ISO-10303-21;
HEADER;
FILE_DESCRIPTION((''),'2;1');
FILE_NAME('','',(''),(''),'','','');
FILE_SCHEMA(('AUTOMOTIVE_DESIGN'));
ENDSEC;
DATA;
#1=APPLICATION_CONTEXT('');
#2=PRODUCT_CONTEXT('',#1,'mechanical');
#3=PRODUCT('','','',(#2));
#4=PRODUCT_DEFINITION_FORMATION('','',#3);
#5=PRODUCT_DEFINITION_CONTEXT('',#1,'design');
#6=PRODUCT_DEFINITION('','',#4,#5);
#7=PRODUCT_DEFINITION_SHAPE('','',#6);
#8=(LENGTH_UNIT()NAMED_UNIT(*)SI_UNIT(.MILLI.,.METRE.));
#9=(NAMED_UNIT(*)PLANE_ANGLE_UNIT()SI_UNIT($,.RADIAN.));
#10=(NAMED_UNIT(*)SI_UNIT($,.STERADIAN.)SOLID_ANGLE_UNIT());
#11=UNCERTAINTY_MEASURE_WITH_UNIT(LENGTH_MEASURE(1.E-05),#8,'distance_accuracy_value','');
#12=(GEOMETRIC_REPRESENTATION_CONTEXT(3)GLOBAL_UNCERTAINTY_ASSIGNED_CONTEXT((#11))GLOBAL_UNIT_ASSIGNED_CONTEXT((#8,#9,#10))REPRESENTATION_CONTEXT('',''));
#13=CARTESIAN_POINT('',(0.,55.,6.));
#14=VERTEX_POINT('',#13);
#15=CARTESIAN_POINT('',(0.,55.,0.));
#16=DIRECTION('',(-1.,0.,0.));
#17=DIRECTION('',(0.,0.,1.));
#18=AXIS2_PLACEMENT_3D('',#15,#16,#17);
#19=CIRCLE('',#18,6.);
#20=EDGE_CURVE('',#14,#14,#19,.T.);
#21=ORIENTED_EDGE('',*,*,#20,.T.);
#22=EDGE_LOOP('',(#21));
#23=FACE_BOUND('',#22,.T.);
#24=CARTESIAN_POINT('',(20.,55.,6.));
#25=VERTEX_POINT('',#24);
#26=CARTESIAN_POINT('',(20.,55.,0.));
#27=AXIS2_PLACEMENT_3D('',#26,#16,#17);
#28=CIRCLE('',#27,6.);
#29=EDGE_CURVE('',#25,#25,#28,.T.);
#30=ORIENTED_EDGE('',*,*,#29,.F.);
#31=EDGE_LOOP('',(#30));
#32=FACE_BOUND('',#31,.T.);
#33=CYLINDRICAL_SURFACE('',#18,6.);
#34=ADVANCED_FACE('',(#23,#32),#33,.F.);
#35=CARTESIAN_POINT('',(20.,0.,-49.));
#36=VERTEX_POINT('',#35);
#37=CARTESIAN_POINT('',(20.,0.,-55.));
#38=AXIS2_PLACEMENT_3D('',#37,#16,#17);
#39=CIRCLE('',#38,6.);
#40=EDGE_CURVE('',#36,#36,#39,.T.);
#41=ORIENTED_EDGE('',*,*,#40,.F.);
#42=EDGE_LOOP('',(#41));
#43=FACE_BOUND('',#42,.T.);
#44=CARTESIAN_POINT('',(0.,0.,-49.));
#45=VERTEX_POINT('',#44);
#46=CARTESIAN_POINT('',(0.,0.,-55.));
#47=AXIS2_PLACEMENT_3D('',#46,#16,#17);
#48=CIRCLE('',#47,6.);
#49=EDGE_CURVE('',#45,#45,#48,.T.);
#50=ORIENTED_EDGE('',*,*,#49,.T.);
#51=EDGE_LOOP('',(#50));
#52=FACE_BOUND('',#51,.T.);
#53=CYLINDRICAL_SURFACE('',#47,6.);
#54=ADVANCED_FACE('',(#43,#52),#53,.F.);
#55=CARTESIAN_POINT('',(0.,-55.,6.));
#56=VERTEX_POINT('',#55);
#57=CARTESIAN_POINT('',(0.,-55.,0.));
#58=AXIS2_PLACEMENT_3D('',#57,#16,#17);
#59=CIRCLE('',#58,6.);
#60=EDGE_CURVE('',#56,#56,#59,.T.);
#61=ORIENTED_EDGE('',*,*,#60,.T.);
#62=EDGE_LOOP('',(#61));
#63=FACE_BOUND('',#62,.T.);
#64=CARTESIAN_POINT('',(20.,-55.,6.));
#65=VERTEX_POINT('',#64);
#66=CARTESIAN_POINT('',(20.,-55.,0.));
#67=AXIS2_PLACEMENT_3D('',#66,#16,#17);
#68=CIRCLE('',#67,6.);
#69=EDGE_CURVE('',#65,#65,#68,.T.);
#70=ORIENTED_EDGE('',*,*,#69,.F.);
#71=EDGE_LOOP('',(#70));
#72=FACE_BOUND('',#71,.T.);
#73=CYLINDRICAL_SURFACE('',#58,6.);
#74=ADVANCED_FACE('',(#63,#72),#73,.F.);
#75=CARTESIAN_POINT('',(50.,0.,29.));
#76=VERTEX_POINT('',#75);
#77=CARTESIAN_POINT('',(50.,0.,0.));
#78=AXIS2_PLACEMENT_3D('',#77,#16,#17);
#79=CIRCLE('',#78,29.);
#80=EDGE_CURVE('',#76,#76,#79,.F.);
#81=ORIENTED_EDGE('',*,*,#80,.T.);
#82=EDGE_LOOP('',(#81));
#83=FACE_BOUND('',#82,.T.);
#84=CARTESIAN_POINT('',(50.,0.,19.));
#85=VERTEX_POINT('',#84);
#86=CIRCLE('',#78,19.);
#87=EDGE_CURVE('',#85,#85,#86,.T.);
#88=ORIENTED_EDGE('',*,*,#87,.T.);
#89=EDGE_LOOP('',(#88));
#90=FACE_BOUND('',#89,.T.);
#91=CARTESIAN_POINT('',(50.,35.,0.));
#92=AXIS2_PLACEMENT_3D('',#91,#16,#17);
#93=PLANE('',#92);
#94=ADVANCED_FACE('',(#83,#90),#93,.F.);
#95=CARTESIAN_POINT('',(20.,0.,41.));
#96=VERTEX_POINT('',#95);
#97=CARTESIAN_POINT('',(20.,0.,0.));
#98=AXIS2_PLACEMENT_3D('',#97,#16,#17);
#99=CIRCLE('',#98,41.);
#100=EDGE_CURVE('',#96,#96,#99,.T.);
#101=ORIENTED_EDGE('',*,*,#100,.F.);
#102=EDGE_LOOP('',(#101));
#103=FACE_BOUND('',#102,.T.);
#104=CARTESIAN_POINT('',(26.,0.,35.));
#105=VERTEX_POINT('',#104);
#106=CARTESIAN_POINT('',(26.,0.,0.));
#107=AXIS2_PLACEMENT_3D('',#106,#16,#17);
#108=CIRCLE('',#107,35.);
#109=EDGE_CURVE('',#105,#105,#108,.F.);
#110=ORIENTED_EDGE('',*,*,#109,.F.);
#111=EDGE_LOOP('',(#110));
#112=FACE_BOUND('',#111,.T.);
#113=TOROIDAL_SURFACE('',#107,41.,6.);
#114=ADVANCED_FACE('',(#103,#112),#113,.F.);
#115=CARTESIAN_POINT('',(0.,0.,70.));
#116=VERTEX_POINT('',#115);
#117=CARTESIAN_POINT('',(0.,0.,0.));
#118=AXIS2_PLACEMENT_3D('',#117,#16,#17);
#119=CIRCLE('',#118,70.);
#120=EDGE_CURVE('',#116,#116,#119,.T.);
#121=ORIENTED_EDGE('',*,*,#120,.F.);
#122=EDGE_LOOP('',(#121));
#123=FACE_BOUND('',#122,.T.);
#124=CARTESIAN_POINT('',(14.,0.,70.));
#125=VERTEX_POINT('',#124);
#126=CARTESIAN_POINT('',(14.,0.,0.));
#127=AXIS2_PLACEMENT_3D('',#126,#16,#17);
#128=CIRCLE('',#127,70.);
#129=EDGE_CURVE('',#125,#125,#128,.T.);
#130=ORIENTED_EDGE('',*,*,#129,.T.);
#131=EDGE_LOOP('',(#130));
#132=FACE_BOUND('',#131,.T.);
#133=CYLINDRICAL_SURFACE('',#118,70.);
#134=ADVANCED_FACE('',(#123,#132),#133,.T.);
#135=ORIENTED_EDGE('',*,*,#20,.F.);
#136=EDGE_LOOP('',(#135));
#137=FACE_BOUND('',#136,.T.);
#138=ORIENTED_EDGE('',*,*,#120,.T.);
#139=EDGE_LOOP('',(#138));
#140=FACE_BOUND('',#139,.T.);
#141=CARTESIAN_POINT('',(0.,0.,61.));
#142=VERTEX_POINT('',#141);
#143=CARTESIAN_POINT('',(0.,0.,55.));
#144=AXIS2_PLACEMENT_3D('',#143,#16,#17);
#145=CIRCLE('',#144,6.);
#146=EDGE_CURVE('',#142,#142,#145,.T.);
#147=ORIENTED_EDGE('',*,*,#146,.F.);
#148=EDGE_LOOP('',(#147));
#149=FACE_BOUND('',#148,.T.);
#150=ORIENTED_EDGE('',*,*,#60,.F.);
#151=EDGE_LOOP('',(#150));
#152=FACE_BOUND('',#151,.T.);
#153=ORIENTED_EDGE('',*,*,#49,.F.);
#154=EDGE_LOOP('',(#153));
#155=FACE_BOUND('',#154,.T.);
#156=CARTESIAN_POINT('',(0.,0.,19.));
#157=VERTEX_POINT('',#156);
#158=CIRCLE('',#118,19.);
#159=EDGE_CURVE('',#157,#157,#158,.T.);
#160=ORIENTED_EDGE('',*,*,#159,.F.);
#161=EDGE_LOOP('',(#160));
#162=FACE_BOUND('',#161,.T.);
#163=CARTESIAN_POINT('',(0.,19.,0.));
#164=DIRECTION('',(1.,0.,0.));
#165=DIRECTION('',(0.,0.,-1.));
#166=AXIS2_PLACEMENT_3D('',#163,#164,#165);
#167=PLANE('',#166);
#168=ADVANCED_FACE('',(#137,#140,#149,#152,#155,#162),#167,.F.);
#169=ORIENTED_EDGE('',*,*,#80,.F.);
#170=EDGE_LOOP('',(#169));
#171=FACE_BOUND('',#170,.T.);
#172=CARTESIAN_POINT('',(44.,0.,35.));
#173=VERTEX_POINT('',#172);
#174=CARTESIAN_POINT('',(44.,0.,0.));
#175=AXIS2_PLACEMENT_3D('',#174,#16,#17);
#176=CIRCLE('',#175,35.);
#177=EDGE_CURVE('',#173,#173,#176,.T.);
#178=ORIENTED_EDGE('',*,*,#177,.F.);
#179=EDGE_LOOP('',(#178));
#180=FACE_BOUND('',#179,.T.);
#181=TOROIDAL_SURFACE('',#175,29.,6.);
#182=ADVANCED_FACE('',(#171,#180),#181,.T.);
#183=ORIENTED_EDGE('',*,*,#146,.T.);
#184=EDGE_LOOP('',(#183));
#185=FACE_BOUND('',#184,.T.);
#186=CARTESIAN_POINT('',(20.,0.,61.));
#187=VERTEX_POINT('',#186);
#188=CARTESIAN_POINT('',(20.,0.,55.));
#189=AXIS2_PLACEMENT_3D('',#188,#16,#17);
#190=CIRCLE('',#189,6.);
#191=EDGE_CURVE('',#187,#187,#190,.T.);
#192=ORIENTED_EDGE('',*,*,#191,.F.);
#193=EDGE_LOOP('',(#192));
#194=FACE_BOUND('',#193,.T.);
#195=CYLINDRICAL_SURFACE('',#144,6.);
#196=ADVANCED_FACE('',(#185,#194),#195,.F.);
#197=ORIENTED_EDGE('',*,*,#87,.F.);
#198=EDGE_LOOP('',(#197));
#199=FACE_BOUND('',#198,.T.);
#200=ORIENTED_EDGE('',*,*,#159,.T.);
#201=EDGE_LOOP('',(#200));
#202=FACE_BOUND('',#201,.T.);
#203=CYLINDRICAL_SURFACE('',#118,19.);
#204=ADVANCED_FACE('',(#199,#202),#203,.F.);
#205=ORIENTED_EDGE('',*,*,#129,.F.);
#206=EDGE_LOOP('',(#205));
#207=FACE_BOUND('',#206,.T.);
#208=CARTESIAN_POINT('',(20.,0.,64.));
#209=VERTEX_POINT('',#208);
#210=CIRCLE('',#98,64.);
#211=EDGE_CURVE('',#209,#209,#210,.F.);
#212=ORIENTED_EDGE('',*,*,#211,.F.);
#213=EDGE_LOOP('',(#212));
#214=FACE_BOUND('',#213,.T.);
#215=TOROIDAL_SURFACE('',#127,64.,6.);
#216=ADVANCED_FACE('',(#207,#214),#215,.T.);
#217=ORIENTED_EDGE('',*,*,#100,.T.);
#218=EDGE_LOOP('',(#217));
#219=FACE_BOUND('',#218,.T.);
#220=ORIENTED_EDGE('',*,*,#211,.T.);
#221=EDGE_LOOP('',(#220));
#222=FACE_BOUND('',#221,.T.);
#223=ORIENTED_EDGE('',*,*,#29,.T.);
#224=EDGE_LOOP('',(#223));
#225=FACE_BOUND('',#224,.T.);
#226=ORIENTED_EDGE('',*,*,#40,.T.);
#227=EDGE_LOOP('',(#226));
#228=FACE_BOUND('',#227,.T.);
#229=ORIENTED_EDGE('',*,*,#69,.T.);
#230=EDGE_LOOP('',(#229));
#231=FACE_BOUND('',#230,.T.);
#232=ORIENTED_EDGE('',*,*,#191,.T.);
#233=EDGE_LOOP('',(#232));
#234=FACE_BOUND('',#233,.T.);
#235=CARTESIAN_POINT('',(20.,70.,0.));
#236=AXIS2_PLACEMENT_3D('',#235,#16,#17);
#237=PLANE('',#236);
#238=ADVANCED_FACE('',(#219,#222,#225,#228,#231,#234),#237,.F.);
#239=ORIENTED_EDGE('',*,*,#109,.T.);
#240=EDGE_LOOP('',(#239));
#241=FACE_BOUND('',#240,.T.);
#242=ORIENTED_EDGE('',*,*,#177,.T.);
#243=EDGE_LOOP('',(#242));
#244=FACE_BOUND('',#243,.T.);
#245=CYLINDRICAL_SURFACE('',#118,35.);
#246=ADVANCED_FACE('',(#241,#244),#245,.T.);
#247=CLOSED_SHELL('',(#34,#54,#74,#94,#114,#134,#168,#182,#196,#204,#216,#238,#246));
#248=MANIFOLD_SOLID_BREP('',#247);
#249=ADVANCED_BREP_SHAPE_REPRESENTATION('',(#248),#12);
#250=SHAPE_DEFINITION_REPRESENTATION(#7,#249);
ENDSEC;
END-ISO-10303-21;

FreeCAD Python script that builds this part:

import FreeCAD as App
import Part
import Sketcher

V = App.Vector


def edges_at(feature, points):
    """Names of the edges that pass closest to the given points."""
    edges = feature.Shape.Edges
    near = lambda p: min(range(len(edges)), key=lambda i: edges[i].distToShape(Part.Vertex(*p))[0])
    return sorted({f"Edge{near(p) + 1}" for p in points})


def add_polygon(sketch, points):
    """Adds a closed chain of lines whose ends are joined by coincident constraints."""
    first, n = sketch.GeometryCount, len(points)
    for a, b in zip(points, points[1:] + points[:1]):
        sketch.addGeometry(Part.LineSegment(App.Vector(*a, 0), App.Vector(*b, 0)), False)
    for i in range(n):
        sketch.addConstraint(Sketcher.Constraint("Coincident", first + i, 2, first + (i + 1) % n, 1))

doc = App.newDocument("Part")
body = doc.addObject("PartDesign::Body", "Body")

# Sketch on XY plane
sketch1 = body.newObject("Sketcher::SketchObject", "Sketch")
sketch1.AttachmentSupport = (doc.getObject("XY_Plane"), [""])
sketch1.MapMode = "FlatFace"
add_polygon(sketch1, [(0, 70), (0, 19), (50, 19), (50, 35), (20, 35), (20, 70)])  # lines 0-5
sketch1.addConstraint(Sketcher.Constraint("Vertical", 0))
sketch1.addConstraint(Sketcher.Constraint("Horizontal", 1))
sketch1.addConstraint(Sketcher.Constraint("Vertical", 2))
sketch1.addConstraint(Sketcher.Constraint("Horizontal", 3))
sketch1.addConstraint(Sketcher.Constraint("Vertical", 4))
sketch1.addConstraint(Sketcher.Constraint("Horizontal", 5))
sketch1.addConstraint(Sketcher.Constraint("PointOnObject", 0, 2, -2))
sketch1.addConstraint(Sketcher.Constraint("DistanceX", 1, 1, 1, 2, 50.0))
sketch1.addConstraint(Sketcher.Constraint("DistanceX", 3, 2, 3, 1, 30.0))
sketch1.addConstraint(Sketcher.Constraint("DistanceY", 0, 2, 0, 1, 51.0))
sketch1.addConstraint(Sketcher.Constraint("DistanceY", 2, 1, 2, 2, 16.0))
sketch1.addConstraint(Sketcher.Constraint("DistanceY", -1, 1, 0, 2, 19.0))
revolution = body.newObject("PartDesign::Revolution", "Revolution")
revolution.Profile = sketch1
revolution.ReferenceAxis = (sketch1, ["H_Axis"])
revolution.Angle = 360
doc.recompute()

fillet = body.newObject("PartDesign::Fillet", "Fillet")
fillet.Base = (revolution, edges_at(revolution, [(50, 0, -35), (20, 0, -35), (20, 0, -70)]))
fillet.Radius = 6

# Sketch on YZ plane
sketch2 = body.newObject("Sketcher::SketchObject", "Sketch001")
sketch2.AttachmentSupport = (doc.getObject("YZ_Plane"), [""])
sketch2.MapMode = "FlatFace"
sketch2.addGeometry(Part.Circle(V(55, 0, 0), V(0, 0, 1), 6), False)
sketch2.addConstraint(Sketcher.Constraint("PointOnObject", 0, 3, -1))
sketch2.addConstraint(Sketcher.Constraint("Diameter", 0, 12.0))
sketch2.addConstraint(Sketcher.Constraint("DistanceX", -1, 1, 0, 3, 55.0))
doc.recompute()
hole = body.newObject("PartDesign::Hole", "Hole")
hole.Profile = sketch2
hole.ThreadType = "None"
hole.Diameter = 12
hole.DepthType = "ThroughAll"
hole.Reversed = True
doc.recompute()

polarpattern = body.newObject("PartDesign::PolarPattern", "PolarPattern")
polarpattern.Originals = [hole]
polarpattern.Axis = (doc.getObject("X_Axis"), [""])
polarpattern.Angle = 360
polarpattern.Occurrences = 4
body.Tip = polarpattern

doc.recompute()
